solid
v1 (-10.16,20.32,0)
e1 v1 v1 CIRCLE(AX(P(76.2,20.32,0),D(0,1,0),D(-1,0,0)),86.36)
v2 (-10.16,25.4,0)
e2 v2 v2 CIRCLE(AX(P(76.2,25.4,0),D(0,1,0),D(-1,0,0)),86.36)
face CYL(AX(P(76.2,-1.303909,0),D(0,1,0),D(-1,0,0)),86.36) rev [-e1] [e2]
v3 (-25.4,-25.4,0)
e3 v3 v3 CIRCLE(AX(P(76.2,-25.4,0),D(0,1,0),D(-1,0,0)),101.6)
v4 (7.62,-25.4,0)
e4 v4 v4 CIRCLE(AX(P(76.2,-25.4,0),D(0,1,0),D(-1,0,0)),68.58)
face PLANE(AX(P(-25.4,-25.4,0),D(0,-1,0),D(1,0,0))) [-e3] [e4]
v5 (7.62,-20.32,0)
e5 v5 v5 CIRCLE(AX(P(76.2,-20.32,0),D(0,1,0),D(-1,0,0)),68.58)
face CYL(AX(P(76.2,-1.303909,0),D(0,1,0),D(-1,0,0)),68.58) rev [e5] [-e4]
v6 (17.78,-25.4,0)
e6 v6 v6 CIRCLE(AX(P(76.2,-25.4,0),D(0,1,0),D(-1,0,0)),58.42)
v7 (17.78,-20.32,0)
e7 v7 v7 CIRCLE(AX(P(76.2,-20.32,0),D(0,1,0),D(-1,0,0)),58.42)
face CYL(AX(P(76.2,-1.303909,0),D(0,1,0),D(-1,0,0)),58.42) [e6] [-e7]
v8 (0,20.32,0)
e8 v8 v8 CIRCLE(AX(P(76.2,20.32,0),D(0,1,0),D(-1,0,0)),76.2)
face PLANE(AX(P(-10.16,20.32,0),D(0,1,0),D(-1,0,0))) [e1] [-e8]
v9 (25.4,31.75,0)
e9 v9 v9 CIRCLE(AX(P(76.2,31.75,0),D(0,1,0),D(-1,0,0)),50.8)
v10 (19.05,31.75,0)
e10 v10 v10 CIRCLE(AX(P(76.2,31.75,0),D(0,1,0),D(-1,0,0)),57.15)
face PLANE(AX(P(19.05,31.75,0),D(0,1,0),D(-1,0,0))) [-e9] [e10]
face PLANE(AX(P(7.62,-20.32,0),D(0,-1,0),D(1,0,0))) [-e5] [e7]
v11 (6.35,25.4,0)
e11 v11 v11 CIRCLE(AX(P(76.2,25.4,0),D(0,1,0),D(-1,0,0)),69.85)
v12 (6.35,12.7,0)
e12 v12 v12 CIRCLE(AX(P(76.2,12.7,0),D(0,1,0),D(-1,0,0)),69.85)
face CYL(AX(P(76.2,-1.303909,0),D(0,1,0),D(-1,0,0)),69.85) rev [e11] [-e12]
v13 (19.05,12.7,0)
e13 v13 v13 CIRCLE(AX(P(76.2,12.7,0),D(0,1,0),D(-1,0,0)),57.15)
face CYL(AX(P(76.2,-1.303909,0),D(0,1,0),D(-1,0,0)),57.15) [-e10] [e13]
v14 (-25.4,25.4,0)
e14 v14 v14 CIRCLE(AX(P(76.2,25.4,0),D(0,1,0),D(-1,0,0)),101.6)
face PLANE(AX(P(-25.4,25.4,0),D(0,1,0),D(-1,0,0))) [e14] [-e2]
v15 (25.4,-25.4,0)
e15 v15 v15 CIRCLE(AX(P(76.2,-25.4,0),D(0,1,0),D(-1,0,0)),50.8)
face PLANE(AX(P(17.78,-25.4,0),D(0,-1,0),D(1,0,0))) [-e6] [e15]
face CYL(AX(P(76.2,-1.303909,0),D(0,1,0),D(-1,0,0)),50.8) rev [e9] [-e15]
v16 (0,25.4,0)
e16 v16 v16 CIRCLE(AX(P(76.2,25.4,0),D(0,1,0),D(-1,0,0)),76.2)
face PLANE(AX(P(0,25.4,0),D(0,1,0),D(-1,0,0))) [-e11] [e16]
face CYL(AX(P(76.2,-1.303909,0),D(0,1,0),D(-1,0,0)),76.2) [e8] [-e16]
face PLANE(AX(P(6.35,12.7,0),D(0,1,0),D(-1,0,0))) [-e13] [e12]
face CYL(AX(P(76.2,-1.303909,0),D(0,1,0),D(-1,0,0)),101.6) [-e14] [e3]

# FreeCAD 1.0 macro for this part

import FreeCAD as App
import Part
import Sketcher

V = App.Vector
Q = App.Units.Quantity


def add_polygon(sketch, points):
    """Adds a closed chain of lines whose ends are joined by coincident constraints."""
    first, n = sketch.GeometryCount, len(points)
    for a, b in zip(points, points[1:] + points[:1]):
        sketch.addGeometry(Part.LineSegment(App.Vector(*a, 0), App.Vector(*b, 0)), False)
    for i in range(n):
        sketch.addConstraint(Sketcher.Constraint("Coincident", first + i, 2, first + (i + 1) % n, 1))

doc = App.newDocument("Part")
body = doc.addObject("PartDesign::Body", "Body")

# Sketch on XY plane
sketch1 = body.newObject("Sketcher::SketchObject", "Sketch")
sketch1.AttachmentSupport = (doc.getObject("XY_Plane"), [""])
sketch1.MapMode = "FlatFace"
add_polygon(sketch1, [(6, 13), (6, 25), (0, 25), (0, 20), (-10, 20), (-10, 25), (-25, 25), (-25, -25), (8, -25), (8, -20), (18, -20), (18, -25), (25, -25), (25, 32), (19, 32), (19, 13)])  # lines 0-15
sketch1.addGeometry(Part.LineSegment(V(76, 32, 0), V(76, -25, 0)), True)  # axis
sketch1.addConstraint([
    Sketcher.Constraint("Vertical", 0),
    Sketcher.Constraint("Horizontal", 1),
    Sketcher.Constraint("Vertical", 2),
    Sketcher.Constraint("Horizontal", 3),
    Sketcher.Constraint("Vertical", 4),
    Sketcher.Constraint("Horizontal", 5),
    Sketcher.Constraint("Vertical", 6),
    Sketcher.Constraint("Horizontal", 7),
    Sketcher.Constraint("Vertical", 8),
    Sketcher.Constraint("Horizontal", 9),
    Sketcher.Constraint("Vertical", 10),
    Sketcher.Constraint("Horizontal", 11),
    Sketcher.Constraint("Vertical", 12),
    Sketcher.Constraint("Horizontal", 13),
    Sketcher.Constraint("Vertical", 14),
    Sketcher.Constraint("Horizontal", 15),
    Sketcher.Constraint("Vertical", 16),
    Sketcher.Constraint("Symmetric", 5, 2, 11, 2, -1, 1),
    Sketcher.Constraint("PointOnObject", 1, 2, -2),
    Sketcher.Constraint("Horizontal", 1, 2, 4, 2),
    Sketcher.Constraint("Horizontal", 7, 2, 10, 2),
    Sketcher.Constraint("Horizontal", 13, 2, 16, 1),
    Sketcher.Constraint("Horizontal", 11, 2, 16, 2),
    Sketcher.Constraint("Equal", 3, 9),
    Sketcher.Constraint("Equal", 1, 13),
    Sketcher.Constraint("Equal", 15, 0),
    Sketcher.Constraint("Equal", 4, 8),
    Sketcher.Constraint("DistanceY", 6, 2, 6, 1, Q("2 in")),
    Sketcher.Constraint("DistanceX", 3, 2, 3, 1, Q("0.4 in")),
    Sketcher.Constraint("DistanceX", 5, 2, 5, 1, Q("0.6 in")),
    Sketcher.Constraint("DistanceX", 7, 1, 7, 2, Q("1.3 in")),
    Sketcher.Constraint("DistanceX", 15, 2, 15, 1, Q("0.5 in")),
    Sketcher.Constraint("DistanceY", 2, 2, 2, 1, Q("0.2 in")),
    Sketcher.Constraint("DistanceX", -1, 1, 16, 1, Q("3 in")),
    Sketcher.Constraint("DistanceY", 12, 1, 12, 2, Q("2.25 in")),
])
revolution = body.newObject("PartDesign::Revolution", "Revolution")
revolution.Profile = sketch1
revolution.ReferenceAxis = (sketch1, ["Axis0"])
revolution.Angle = 360

doc.recompute()
